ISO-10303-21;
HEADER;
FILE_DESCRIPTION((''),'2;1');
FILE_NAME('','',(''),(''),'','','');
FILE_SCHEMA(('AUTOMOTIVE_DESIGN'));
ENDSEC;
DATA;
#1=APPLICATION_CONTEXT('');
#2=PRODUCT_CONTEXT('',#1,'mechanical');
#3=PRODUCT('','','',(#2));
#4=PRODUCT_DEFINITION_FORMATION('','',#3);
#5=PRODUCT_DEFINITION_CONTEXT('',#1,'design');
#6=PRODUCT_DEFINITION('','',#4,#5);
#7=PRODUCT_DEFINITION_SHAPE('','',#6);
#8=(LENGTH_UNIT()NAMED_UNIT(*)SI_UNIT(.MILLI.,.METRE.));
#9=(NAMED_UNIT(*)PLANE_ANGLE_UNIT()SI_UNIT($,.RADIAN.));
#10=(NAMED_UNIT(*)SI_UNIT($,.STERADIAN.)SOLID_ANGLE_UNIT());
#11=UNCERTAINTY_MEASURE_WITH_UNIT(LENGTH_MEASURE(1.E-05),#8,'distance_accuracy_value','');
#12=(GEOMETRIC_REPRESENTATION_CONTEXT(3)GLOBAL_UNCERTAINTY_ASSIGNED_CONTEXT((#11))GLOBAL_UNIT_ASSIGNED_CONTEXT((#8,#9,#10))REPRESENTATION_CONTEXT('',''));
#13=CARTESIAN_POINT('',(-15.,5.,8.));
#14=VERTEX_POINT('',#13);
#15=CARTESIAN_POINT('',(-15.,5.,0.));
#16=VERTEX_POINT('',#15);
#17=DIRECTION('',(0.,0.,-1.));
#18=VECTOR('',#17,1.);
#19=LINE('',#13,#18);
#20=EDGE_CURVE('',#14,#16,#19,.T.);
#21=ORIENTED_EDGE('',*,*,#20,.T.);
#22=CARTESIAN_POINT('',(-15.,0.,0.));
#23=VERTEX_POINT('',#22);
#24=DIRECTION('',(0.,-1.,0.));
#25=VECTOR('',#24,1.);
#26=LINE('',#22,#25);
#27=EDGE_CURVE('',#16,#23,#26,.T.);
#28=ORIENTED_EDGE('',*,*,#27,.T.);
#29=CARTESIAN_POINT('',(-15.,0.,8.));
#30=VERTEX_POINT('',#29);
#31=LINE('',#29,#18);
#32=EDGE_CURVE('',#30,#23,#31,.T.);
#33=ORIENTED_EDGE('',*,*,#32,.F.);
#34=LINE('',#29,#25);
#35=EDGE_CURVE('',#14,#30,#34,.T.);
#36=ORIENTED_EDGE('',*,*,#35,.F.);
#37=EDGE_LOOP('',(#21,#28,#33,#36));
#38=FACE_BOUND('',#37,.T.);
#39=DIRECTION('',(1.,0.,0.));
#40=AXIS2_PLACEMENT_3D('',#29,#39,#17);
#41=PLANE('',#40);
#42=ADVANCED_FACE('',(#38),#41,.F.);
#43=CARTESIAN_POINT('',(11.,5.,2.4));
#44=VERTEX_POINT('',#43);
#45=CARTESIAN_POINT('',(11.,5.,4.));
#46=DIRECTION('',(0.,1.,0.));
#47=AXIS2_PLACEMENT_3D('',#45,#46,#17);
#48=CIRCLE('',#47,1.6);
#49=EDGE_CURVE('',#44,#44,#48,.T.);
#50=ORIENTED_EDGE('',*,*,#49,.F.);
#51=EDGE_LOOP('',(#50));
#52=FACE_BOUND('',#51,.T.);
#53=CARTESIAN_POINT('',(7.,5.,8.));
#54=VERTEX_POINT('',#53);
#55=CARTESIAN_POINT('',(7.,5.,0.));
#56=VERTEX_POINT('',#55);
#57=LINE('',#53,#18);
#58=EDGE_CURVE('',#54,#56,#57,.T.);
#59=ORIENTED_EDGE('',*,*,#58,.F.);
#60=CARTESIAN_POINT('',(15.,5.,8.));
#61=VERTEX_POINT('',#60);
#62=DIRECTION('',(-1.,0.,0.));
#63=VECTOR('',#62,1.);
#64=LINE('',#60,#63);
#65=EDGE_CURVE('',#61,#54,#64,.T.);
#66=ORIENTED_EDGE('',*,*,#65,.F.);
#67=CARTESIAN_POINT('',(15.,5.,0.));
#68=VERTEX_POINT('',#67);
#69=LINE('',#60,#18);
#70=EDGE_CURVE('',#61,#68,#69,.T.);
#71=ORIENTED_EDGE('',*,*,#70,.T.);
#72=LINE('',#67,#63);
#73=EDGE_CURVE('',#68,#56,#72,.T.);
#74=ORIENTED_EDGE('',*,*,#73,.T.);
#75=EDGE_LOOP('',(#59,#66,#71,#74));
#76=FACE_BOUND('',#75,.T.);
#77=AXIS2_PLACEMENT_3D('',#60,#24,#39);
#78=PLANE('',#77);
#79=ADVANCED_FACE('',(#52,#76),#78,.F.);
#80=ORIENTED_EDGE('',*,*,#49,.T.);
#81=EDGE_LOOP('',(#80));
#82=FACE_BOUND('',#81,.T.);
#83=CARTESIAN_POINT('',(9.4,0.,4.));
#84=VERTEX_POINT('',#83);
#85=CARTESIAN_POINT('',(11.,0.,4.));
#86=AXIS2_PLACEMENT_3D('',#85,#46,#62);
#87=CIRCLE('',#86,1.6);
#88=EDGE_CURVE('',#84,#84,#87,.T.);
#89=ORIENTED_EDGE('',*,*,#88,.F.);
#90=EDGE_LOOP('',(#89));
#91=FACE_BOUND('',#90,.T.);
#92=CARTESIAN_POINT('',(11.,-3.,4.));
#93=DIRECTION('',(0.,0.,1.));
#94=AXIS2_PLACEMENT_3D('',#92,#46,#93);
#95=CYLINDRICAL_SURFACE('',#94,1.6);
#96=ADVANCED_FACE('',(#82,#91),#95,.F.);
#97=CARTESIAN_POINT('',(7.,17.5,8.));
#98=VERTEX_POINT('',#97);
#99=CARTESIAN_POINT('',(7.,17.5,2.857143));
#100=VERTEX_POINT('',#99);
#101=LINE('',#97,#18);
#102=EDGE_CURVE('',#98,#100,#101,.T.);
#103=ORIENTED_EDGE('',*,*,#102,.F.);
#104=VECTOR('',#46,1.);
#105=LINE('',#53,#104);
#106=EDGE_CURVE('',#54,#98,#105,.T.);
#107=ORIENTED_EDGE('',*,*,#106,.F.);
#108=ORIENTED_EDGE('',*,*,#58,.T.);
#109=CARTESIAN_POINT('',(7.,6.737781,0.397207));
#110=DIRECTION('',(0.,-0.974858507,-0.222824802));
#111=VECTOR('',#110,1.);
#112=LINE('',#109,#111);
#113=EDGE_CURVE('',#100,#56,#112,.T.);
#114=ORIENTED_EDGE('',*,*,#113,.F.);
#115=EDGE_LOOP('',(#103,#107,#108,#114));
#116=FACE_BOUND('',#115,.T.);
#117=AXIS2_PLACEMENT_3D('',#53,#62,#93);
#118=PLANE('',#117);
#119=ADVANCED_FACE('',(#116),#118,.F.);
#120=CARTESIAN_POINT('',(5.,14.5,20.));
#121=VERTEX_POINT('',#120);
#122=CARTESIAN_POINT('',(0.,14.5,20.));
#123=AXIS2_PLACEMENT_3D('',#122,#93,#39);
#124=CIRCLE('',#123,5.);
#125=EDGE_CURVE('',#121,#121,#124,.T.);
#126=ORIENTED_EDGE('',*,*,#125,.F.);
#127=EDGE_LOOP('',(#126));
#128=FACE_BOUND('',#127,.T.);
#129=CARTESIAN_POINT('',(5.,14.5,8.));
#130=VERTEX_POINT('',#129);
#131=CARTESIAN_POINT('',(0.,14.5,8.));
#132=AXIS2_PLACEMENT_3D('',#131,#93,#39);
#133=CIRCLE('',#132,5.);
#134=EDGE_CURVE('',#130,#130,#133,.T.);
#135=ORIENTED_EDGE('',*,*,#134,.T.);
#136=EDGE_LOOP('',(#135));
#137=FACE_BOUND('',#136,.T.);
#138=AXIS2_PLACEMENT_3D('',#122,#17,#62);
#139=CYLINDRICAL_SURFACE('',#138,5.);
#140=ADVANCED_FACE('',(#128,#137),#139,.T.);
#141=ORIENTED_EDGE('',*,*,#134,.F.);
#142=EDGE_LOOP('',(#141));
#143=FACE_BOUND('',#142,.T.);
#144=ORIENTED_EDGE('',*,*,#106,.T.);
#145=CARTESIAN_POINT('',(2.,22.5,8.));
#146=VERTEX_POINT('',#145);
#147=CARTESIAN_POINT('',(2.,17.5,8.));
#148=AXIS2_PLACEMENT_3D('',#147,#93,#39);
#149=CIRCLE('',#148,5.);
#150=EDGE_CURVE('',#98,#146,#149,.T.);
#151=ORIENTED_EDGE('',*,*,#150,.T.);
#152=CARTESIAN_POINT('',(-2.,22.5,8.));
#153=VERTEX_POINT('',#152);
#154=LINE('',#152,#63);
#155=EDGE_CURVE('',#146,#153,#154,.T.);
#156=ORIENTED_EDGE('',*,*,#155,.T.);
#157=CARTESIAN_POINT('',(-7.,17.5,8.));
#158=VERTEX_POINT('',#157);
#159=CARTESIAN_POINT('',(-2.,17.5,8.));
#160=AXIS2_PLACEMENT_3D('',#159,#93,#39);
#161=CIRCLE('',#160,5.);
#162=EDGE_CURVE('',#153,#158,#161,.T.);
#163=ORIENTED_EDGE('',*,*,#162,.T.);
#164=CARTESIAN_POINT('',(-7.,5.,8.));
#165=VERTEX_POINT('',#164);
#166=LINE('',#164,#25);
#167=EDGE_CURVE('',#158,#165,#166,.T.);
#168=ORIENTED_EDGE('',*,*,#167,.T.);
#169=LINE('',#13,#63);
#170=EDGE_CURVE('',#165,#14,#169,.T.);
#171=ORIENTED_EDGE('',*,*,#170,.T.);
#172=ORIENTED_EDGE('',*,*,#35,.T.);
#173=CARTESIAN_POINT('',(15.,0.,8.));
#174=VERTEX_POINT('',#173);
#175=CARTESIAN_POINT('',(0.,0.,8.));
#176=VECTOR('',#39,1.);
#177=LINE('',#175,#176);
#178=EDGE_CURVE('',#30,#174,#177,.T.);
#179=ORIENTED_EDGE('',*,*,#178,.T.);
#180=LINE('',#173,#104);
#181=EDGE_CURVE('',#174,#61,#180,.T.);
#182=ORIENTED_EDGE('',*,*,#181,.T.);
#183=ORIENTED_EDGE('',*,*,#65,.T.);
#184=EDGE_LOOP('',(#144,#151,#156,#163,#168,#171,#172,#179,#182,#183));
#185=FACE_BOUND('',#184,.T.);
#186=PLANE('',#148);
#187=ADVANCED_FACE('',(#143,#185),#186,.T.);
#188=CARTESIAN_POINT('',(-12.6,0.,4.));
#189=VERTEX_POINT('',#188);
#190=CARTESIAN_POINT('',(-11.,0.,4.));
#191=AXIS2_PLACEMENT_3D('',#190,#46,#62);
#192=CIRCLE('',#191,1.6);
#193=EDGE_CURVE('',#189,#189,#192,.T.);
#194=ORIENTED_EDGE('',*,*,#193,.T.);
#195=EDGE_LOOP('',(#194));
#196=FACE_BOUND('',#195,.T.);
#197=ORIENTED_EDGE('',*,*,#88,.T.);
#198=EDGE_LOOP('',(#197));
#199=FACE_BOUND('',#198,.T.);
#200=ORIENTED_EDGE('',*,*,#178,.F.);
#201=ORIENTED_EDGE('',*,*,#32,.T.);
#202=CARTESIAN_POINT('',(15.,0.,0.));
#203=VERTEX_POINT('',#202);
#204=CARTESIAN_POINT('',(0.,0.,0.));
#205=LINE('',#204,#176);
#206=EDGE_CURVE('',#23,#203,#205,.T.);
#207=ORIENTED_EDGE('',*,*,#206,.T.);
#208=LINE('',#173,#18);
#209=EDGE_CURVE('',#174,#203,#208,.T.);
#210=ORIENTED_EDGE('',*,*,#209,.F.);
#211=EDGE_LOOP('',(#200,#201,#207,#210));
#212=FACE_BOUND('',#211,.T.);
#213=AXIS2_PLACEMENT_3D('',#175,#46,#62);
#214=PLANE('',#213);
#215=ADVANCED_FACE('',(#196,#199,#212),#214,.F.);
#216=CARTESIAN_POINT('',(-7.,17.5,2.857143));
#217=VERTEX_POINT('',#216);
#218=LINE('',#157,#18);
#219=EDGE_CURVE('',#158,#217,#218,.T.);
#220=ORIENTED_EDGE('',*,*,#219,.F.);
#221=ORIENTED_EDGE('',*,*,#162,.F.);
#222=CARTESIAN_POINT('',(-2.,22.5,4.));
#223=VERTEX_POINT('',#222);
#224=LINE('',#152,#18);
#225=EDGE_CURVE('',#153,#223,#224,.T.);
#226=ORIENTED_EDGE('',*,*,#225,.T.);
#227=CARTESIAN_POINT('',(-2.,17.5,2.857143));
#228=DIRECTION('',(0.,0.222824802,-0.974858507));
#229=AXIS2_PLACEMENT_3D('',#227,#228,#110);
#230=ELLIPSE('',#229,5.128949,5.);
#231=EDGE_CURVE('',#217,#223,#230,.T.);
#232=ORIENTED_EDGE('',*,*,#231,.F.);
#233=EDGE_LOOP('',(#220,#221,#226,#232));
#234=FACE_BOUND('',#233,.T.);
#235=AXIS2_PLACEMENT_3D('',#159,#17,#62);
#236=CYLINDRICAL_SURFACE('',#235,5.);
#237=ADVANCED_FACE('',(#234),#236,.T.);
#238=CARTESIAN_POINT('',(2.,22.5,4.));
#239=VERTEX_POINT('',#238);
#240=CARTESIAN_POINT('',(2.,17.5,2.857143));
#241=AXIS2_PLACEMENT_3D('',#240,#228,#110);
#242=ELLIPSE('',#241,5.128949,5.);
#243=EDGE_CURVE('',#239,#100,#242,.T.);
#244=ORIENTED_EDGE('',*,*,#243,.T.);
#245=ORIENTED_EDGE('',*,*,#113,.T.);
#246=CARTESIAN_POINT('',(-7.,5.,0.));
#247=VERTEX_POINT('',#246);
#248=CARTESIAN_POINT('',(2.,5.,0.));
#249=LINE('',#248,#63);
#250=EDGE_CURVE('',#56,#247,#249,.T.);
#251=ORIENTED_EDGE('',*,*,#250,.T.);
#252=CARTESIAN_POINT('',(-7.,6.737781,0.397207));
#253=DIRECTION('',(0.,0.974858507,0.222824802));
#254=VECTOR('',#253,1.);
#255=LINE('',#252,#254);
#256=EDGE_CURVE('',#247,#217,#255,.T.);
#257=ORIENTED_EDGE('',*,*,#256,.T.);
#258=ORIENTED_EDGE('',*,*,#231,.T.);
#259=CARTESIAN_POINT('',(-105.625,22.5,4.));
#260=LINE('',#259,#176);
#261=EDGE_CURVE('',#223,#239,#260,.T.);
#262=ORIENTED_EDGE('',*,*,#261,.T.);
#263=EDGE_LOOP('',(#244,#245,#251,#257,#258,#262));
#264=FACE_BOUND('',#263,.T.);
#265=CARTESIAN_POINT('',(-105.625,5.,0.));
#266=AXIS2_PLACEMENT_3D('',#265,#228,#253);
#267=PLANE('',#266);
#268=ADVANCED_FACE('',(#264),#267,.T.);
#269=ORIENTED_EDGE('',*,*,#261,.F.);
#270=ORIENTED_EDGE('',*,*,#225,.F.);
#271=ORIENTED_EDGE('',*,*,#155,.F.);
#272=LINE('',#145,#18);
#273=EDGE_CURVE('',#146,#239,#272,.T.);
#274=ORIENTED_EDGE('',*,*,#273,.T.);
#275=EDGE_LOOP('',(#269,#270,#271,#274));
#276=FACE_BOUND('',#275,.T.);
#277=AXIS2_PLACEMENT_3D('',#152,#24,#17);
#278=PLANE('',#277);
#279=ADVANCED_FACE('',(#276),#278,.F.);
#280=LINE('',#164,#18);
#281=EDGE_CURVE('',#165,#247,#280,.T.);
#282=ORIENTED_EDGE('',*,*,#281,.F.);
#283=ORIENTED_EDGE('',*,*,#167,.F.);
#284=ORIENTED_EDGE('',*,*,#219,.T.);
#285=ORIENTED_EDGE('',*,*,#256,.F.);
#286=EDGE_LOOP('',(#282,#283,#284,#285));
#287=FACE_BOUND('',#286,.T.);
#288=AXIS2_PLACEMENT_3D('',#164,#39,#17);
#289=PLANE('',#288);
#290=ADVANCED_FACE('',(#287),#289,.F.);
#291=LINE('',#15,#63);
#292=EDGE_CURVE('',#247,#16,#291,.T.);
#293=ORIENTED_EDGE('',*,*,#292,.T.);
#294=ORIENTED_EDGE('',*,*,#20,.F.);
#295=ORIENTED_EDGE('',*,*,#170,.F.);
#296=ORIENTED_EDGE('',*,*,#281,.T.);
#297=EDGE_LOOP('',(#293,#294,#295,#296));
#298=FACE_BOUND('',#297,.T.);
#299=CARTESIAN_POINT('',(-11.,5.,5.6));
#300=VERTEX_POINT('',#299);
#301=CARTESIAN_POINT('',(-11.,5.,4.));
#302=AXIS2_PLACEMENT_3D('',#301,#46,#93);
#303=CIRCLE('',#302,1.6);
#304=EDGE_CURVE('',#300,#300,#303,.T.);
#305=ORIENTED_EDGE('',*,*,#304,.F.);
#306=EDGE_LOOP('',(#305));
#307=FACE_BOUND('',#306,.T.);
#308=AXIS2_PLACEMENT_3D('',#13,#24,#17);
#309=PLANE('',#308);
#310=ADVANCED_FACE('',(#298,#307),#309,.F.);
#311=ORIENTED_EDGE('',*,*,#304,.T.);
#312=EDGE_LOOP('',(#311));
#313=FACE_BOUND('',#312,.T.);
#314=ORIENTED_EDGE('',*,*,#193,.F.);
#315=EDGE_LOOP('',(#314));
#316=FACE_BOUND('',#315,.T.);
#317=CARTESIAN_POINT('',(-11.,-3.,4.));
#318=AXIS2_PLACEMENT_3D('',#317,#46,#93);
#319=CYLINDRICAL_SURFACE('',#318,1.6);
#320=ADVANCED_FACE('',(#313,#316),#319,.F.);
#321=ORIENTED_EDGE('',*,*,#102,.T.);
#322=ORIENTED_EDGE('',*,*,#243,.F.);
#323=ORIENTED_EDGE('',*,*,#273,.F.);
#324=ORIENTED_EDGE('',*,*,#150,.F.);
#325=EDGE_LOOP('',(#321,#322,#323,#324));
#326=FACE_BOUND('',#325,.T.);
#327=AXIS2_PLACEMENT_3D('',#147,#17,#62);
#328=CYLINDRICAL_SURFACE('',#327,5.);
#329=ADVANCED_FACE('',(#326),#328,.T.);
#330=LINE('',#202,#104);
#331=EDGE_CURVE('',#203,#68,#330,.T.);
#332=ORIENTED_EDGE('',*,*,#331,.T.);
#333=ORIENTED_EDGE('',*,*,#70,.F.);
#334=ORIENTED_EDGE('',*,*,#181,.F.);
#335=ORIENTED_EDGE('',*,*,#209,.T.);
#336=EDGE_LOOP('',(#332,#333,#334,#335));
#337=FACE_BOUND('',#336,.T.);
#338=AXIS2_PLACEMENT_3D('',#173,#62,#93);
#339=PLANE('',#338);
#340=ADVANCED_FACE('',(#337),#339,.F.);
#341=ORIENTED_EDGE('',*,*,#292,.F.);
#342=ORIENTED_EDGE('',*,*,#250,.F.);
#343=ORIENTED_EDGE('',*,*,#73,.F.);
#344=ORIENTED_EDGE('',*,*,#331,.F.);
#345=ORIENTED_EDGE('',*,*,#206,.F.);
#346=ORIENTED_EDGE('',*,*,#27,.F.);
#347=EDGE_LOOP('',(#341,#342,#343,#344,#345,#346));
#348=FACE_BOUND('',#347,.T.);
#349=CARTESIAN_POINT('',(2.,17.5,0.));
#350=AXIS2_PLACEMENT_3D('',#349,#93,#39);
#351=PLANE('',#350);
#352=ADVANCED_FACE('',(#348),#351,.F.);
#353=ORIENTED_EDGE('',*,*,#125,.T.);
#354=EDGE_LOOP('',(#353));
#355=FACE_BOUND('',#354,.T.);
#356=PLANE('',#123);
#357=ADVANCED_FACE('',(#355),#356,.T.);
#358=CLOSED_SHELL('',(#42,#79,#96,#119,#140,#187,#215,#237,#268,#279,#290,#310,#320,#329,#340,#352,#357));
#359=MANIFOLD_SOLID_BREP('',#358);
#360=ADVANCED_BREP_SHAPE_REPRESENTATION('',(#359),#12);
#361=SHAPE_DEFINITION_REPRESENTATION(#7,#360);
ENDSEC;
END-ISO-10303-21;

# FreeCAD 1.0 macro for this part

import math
import FreeCAD as App
import Part
import Sketcher
from FreeCAD import Vector


def add_polygon(sketch, points):
    """Adds a closed chain of lines whose ends are joined by coincident constraints."""
    first, n = sketch.GeometryCount, len(points)
    for a, b in zip(points, points[1:] + points[:1]):
        sketch.addGeometry(Part.LineSegment(App.Vector(*a, 0), App.Vector(*b, 0)), False)
    for i in range(n):
        sketch.addConstraint(Sketcher.Constraint("Coincident", first + i, 2, first + (i + 1) % n, 1))

doc = App.newDocument("Part")
body = doc.addObject("PartDesign::Body", "Body")

sketch1 = doc.addObject("Sketcher::SketchObject", "Sketch")
body.addObject(sketch1)
sketch1.AttachmentSupport = (doc.XY_Plane, [""])
sketch1.MapMode = "FlatFace"
sketch1.addGeometry([
    Part.LineSegment(Vector(-15, 5, 0), Vector(-15, 0, 0)),
    Part.LineSegment(Vector(-15, 0, 0), Vector(15, 0, 0)),
    Part.LineSegment(Vector(15, 0, 0), Vector(15, 5, 0)),
    Part.LineSegment(Vector(15, 5, 0), Vector(7, 5, 0)),
    Part.LineSegment(Vector(7, 5, 0), Vector(7, 17.5, 0)),
    Part.ArcOfCircle(Part.Circle(Vector(2, 17.5, 0), Vector(0, 0, 1), 5), math.radians(0), math.radians(90)),
    Part.LineSegment(Vector(2, 22.5, 0), Vector(-2, 22.5, 0)),
    Part.ArcOfCircle(Part.Circle(Vector(-2, 17.5, 0), Vector(0, 0, 1), 5), math.radians(90), math.radians(180)),
    Part.LineSegment(Vector(-7, 17.5, 0), Vector(-7, 5, 0)),
    Part.LineSegment(Vector(-7, 5, 0), Vector(-15, 5, 0)),
], False)
sketch1.addConstraint([
    Sketcher.Constraint("Coincident", 0, 2, 1, 1),
    Sketcher.Constraint("Coincident", 1, 2, 2, 1),
    Sketcher.Constraint("Coincident", 2, 2, 3, 1),
    Sketcher.Constraint("Coincident", 3, 2, 4, 1),
    Sketcher.Constraint("Tangent", 4, 2, 5, 1),
    Sketcher.Constraint("Tangent", 5, 2, 6, 1),
    Sketcher.Constraint("Tangent", 6, 2, 7, 1),
    Sketcher.Constraint("Tangent", 7, 2, 8, 1),
    Sketcher.Constraint("Coincident", 8, 2, 9, 1),
    Sketcher.Constraint("Coincident", 9, 2, 0, 1),
    Sketcher.Constraint("Vertical", 0),
    Sketcher.Constraint("Horizontal", 1),
    Sketcher.Constraint("Vertical", 2),
    Sketcher.Constraint("Horizontal", 3),
    Sketcher.Constraint("Vertical", 4),
    Sketcher.Constraint("Horizontal", 6),
    Sketcher.Constraint("Vertical", 8),
    Sketcher.Constraint("Horizontal", 9),
    Sketcher.Constraint("Equal", 5, 7),
    Sketcher.Constraint("Symmetric", 0, 2, 1, 2, -1, 1),
    Sketcher.Constraint("Symmetric", 3, 2, 8, 2, -2),
    Sketcher.Constraint("Radius", 5, 5.0),
    Sketcher.Constraint("DistanceX", 1, 1, 1, 2, 30.0),
    Sketcher.Constraint("DistanceX", 3, 2, 3, 1, 8.0),
    Sketcher.Constraint("DistanceY", 0, 2, 0, 1, 5.0),
    Sketcher.Constraint("DistanceY", 4, 1, 4, 2, 12.5),
])
pad1 = doc.addObject("PartDesign::Pad", "Pad")
body.addObject(pad1)
pad1.Profile = sketch1
pad1.Length = 8

sketch2 = doc.addObject("Sketcher::SketchObject", "Sketch001")
body.addObject(sketch2)
sketch2.AttachmentSupport = (doc.XZ_Plane, [""])
sketch2.MapMode = "FlatFace"
sketch2.AttachmentOffset = App.Placement(Vector(0, 0, -5), App.Rotation())
sketch2.addGeometry([
    Part.Circle(Vector(-11, 4, 0), Vector(0, 0, 1), 1.6),
    Part.Circle(Vector(11, 4, 0), Vector(0, 0, 1), 1.6),
], False)
sketch2.addConstraint([
    Sketcher.Constraint("Equal", 0, 1),
    Sketcher.Constraint("Symmetric", 0, 3, 1, 3, -2),
    Sketcher.Constraint("Diameter", 0, 3.2),
    Sketcher.Constraint("DistanceX", 0, 3, -1, 1, 11.0),
    Sketcher.Constraint("DistanceY", -1, 1, 0, 3, 4.0),
])
pocket1 = doc.addObject("PartDesign::Pocket", "Pocket")
body.addObject(pocket1)
pocket1.Profile = sketch2
pocket1.Length = 8
pocket1.Reversed = True

sketch3 = doc.addObject("Sketcher::SketchObject", "Sketch002")
body.addObject(sketch3)
sketch3.AttachmentSupport = (doc.XY_Plane, [""])
sketch3.MapMode = "FlatFace"
sketch3.AttachmentOffset = App.Placement(Vector(0, 0, 8), App.Rotation())
sketch3.addGeometry(Part.Circle(Vector(0, 14, 0), Vector(0, 0, 1), 5), False)
sketch3.addConstraint([
    Sketcher.Constraint("PointOnObject", 0, 3, -2),
    Sketcher.Constraint("Diameter", 0, 10.0),
    Sketcher.Constraint("DistanceY", -1, 1, 0, 3, 14.5),
])
pad2 = doc.addObject("PartDesign::Pad", "Pad001")
body.addObject(pad2)
pad2.Profile = sketch3
pad2.Length = 12

sketch4 = doc.addObject("Sketcher::SketchObject", "Sketch003")
body.addObject(sketch4)
sketch4.AttachmentSupport = (doc.YZ_Plane, [""])
sketch4.MapMode = "FlatFace"
sketch4.AttachmentOffset = App.Placement(Vector(0, 0, -15), App.Rotation())
add_polygon(sketch4, [(-59, -15), (5, 0), (22, 4), (86, 19), (115, -109), (-30, -142)])
sketch4.addConstraint([
    Sketcher.Constraint("PointOnObject", 0, 2, -1),
    Sketcher.Constraint("Parallel", 0, 1),
    Sketcher.Constraint("Parallel", 1, 2),
    Sketcher.Constraint("Perpendicular", 2, 3),
    Sketcher.Constraint("Perpendicular", 3, 4),
    Sketcher.Constraint("Perpendicular", 4, 5),
    Sketcher.Constraint("Equal", 0, 2),
    Sketcher.Constraint("DistanceX", -1, 1, 0, 2, 5.0),
    Sketcher.Constraint("DistanceY", -1, 1, 1, 2, 4.0),
    Sketcher.Constraint("DistanceX", -1, 1, 1, 2, 22.5),
    Sketcher.Constraint("Distance", 3, 130.435502),
    Sketcher.Constraint("Distance", 0, 65.217751),
])
pocket2 = doc.addObject("PartDesign::Pocket", "Pocket001")
body.addObject(pocket2)
pocket2.Profile = sketch4
pocket2.Type = "ThroughAll"
pocket2.Midplane = True

doc.recompute()
